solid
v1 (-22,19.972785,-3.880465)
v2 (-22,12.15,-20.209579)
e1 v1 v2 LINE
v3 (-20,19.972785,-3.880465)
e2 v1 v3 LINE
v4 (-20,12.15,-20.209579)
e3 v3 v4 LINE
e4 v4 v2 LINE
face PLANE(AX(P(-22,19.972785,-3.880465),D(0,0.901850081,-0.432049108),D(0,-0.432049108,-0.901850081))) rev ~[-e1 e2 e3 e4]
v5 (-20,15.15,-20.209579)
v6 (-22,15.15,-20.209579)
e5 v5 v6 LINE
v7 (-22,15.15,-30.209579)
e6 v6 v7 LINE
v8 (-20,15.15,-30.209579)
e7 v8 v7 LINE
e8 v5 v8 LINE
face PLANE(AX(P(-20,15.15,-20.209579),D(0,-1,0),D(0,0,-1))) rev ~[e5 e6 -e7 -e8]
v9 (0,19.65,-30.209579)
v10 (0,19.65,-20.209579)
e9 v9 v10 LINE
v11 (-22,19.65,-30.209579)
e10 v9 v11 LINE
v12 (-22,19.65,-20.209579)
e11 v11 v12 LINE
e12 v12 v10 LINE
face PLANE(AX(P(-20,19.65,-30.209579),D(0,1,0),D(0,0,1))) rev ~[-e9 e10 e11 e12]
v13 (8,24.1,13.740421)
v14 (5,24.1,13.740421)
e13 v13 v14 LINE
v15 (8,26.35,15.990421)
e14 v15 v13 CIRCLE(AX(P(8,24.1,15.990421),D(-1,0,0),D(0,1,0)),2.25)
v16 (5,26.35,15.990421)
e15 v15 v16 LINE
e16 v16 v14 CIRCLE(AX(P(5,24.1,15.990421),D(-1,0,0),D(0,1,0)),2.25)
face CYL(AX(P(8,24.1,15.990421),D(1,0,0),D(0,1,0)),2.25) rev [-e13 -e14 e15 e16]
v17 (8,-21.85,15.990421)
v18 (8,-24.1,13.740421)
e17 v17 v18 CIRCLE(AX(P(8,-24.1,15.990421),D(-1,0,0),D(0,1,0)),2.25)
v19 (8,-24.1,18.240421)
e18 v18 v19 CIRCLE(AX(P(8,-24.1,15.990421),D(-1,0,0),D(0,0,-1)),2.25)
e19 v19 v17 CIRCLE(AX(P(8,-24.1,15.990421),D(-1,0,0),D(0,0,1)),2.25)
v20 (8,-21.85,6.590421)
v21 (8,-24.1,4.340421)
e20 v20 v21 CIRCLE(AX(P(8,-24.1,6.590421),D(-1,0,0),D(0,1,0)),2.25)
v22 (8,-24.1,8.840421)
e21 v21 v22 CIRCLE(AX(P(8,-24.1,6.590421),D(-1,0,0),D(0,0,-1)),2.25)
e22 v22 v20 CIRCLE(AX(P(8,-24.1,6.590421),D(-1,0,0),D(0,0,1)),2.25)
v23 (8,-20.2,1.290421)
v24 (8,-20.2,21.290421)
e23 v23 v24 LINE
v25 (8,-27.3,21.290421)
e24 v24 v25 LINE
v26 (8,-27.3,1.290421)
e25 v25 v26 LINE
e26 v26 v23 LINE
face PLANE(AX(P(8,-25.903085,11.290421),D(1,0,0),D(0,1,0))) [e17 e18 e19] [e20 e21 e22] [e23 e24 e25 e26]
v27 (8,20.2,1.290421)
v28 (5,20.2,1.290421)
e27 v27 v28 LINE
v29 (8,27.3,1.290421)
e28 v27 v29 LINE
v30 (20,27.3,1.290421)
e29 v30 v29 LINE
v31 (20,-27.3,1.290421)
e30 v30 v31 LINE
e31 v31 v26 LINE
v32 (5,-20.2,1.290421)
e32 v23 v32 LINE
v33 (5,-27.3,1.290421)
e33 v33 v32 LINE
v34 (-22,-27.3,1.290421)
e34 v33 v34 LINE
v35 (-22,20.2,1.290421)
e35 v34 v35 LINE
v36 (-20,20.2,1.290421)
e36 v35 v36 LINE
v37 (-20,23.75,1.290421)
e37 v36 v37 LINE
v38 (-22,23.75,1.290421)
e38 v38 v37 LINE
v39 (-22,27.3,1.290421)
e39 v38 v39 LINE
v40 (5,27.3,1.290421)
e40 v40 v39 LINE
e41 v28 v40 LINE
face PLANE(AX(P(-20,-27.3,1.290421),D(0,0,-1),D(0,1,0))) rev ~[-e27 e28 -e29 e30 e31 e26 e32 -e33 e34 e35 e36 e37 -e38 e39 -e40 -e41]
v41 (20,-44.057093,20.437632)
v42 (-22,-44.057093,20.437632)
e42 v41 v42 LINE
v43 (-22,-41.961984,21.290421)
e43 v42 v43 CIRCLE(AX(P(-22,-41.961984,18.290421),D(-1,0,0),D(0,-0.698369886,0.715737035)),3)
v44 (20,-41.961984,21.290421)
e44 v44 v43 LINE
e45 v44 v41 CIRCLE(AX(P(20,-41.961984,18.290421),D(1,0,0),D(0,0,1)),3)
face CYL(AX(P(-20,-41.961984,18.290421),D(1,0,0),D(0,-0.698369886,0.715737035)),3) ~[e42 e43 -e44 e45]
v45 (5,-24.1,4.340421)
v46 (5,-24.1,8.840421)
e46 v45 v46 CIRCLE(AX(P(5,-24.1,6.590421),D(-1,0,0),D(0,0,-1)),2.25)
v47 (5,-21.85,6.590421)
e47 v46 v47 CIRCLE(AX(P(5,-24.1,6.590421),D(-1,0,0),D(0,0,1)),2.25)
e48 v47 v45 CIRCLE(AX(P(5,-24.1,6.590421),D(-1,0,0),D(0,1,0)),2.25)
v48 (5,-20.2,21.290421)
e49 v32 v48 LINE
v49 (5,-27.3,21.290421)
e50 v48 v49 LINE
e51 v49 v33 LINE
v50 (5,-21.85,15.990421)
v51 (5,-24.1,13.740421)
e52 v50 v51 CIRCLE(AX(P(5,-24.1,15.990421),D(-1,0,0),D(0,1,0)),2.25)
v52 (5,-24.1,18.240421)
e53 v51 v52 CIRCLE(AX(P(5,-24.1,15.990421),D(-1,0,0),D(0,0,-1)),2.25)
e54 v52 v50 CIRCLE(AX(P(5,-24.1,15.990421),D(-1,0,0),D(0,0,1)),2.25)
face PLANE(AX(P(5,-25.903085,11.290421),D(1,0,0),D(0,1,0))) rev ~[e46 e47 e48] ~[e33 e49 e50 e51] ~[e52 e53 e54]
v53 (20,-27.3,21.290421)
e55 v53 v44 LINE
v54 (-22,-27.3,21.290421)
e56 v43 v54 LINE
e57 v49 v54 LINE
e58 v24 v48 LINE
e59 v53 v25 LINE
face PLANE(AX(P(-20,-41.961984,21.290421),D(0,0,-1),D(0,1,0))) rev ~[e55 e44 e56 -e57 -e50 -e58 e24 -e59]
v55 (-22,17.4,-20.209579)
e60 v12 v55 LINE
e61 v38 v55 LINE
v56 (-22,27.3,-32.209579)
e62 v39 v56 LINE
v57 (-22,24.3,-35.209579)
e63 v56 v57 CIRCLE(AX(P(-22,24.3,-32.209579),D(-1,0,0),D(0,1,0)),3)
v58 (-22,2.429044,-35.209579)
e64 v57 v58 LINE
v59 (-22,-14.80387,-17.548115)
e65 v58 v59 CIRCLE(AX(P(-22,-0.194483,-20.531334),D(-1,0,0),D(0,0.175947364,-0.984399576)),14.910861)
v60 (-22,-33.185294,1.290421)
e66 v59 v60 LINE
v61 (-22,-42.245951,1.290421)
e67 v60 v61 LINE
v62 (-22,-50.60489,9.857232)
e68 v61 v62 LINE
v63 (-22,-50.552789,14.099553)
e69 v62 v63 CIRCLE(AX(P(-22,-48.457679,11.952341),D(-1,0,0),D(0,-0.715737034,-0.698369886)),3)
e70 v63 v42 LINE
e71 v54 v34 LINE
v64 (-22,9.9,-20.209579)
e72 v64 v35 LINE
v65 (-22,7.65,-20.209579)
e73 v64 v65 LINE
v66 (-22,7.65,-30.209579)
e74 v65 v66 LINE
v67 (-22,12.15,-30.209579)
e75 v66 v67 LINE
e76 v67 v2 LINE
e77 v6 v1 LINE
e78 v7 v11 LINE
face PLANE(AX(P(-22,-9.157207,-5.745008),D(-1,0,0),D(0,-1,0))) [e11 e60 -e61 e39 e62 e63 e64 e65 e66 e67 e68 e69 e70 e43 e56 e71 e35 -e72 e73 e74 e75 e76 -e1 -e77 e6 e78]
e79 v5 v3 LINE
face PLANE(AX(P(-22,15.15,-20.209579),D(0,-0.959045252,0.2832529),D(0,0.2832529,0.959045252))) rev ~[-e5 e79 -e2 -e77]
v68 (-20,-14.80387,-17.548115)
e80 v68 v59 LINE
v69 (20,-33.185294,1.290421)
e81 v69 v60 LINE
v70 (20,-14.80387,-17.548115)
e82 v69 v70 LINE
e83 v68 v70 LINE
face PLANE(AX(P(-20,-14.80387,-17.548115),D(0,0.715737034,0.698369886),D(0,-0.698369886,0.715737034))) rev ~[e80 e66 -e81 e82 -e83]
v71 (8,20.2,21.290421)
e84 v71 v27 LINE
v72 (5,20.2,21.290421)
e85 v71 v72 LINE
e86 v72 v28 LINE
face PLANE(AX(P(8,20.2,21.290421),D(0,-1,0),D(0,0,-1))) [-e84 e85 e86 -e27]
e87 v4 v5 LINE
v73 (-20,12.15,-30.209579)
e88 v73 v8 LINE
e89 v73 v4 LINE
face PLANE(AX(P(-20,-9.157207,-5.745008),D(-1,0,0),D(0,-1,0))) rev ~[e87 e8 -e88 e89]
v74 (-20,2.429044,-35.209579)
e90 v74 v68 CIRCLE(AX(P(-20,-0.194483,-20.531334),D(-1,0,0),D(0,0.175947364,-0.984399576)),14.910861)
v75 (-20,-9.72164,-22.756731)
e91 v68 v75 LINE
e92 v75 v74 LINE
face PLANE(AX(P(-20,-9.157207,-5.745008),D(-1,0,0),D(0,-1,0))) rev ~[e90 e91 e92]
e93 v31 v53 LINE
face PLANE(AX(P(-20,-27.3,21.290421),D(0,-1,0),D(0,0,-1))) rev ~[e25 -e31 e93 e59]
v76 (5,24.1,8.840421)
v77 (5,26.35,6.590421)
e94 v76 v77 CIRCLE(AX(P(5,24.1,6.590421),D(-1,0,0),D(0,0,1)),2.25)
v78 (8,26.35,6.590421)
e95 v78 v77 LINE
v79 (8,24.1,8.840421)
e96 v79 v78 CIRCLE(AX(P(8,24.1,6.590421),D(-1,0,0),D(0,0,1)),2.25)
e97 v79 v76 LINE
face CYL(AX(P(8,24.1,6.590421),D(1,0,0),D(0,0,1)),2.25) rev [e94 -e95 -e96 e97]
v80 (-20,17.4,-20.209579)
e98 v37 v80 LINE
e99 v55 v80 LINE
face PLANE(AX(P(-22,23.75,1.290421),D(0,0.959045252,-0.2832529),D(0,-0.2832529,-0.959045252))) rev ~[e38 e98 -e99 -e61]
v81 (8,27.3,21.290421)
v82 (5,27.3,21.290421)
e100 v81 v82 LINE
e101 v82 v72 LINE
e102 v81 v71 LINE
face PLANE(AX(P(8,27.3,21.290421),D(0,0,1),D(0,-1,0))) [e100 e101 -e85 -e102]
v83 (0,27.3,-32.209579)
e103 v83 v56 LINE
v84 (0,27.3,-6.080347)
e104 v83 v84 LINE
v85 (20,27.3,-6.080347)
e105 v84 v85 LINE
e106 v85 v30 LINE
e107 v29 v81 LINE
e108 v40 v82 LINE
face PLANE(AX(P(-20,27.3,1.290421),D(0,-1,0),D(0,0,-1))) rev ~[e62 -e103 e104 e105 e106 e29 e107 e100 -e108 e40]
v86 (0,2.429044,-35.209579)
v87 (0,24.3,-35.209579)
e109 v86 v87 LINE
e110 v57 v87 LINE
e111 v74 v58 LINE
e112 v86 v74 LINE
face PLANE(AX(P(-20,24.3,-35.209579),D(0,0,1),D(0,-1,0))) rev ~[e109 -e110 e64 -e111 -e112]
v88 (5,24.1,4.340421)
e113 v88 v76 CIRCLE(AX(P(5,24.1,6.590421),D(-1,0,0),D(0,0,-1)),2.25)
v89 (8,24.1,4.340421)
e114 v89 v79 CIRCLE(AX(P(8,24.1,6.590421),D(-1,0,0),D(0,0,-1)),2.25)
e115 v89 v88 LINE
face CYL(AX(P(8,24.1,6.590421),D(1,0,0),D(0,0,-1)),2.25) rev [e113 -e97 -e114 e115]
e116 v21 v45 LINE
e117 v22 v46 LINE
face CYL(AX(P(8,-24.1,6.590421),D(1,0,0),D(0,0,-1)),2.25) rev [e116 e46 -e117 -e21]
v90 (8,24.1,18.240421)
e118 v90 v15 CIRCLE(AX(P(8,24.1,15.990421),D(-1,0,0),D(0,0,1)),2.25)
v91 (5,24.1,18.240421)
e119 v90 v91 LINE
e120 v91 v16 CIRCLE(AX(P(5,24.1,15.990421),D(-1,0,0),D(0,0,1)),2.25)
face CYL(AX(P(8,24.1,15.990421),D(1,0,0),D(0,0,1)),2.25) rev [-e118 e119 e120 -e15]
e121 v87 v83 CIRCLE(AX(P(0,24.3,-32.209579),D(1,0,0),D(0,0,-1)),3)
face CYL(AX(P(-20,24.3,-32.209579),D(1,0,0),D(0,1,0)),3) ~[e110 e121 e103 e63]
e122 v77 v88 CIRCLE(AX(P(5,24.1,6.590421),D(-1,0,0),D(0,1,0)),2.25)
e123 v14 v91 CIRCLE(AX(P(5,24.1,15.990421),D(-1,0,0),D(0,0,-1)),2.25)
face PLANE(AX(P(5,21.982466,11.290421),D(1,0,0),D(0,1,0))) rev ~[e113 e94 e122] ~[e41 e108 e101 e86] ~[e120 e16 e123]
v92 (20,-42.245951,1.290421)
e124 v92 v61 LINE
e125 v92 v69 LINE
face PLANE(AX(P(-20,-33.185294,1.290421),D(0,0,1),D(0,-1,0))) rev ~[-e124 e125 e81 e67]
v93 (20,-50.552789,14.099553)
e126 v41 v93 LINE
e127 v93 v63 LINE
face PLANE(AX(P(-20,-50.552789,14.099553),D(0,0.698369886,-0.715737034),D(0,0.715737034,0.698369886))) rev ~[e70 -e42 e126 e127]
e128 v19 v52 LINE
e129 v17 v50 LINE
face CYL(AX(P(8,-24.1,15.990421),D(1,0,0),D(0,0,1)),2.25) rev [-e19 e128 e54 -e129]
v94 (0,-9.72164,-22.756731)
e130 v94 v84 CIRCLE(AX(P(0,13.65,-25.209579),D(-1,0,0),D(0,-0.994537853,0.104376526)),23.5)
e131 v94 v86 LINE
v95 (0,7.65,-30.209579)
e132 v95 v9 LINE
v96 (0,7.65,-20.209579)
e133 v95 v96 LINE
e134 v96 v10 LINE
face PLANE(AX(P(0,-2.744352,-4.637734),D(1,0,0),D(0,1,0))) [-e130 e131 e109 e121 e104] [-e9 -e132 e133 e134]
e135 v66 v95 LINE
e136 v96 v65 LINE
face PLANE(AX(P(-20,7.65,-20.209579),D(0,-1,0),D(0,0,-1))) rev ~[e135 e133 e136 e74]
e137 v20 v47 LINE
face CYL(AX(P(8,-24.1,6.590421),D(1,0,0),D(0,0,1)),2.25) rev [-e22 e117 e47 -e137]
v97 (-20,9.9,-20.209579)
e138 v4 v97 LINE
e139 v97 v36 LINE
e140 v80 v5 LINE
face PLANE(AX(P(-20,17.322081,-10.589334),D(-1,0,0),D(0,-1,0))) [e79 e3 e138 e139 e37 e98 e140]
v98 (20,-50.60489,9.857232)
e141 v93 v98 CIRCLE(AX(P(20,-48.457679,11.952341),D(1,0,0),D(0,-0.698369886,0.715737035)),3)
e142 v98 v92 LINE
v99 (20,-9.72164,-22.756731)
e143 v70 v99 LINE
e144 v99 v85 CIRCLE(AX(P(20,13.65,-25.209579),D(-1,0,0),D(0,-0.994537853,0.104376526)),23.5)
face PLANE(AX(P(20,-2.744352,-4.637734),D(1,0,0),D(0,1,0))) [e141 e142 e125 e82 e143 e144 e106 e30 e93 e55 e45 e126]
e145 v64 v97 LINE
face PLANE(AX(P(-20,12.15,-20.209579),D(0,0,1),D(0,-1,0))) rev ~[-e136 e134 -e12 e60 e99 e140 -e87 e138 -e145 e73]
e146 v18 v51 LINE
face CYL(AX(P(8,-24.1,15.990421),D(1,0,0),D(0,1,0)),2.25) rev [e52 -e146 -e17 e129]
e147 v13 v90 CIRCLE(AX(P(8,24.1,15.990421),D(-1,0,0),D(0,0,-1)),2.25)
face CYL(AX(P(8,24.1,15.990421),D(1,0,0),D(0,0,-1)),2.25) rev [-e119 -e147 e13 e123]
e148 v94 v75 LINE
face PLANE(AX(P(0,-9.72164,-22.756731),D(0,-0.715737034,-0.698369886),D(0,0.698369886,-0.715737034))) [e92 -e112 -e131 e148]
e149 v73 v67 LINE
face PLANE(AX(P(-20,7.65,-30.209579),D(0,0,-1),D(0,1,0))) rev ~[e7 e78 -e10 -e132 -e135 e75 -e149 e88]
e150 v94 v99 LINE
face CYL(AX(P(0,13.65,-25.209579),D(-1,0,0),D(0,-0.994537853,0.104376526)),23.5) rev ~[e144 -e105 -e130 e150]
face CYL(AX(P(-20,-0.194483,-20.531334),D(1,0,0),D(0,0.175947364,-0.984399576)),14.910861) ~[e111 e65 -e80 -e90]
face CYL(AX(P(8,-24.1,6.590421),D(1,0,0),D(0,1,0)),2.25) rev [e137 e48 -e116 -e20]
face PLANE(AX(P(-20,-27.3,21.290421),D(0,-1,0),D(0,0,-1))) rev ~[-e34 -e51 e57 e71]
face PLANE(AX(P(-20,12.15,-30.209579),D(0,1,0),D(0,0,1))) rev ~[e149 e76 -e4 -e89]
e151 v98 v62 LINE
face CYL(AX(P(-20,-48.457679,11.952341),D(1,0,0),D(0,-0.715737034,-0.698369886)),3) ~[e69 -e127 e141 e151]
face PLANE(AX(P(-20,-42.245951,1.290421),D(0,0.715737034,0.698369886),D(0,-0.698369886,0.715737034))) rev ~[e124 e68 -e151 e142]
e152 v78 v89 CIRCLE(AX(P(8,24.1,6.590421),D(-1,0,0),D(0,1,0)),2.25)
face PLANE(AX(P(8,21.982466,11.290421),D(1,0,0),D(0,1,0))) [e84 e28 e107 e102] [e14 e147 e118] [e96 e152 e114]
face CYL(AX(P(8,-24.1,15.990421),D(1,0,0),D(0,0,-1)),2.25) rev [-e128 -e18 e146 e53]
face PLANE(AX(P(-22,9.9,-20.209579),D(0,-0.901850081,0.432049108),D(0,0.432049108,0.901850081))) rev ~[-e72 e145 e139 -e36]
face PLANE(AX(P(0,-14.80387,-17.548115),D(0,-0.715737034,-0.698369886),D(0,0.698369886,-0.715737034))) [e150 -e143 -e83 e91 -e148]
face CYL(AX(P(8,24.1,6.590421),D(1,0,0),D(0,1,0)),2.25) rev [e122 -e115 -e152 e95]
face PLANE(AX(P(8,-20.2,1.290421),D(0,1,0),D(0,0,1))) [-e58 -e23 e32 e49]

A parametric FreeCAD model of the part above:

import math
import FreeCAD as App
import Part
import Sketcher
from FreeCAD import Vector


def add_polygon(sketch, points):
    """Adds a closed chain of lines whose ends are joined by coincident constraints."""
    first, n = sketch.GeometryCount, len(points)
    for a, b in zip(points, points[1:] + points[:1]):
        sketch.addGeometry(Part.LineSegment(App.Vector(*a, 0), App.Vector(*b, 0)), False)
    for i in range(n):
        sketch.addConstraint(Sketcher.Constraint("Coincident", first + i, 2, first + (i + 1) % n, 1))

doc = App.newDocument("Part")
body = doc.addObject("PartDesign::Body", "Body")

sketch1 = body.newObject("Sketcher::SketchObject", "Sketch")
sketch1.AttachmentSupport = (doc.getObject("YZ_Plane"), [""])
sketch1.MapMode = "FlatFace"
sketch1.addGeometry([
    Part.ArcOfCircle(Part.Circle(Vector(13.7, -25.2, 0), Vector(0, 0, 1), 23.5), math.radians(54), math.radians(174)),
    Part.LineSegment(Vector(27.3, -6.1, 0), Vector(27.3, 1.3, 0)),
    Part.LineSegment(Vector(27.3, 1.3, 0), Vector(-27.3, 1.3, 0)),
    Part.LineSegment(Vector(-27.3, 1.3, 0), Vector(-27.3, 21.3, 0)),
    Part.LineSegment(Vector(-27.3, 21.3, 0), Vector(-42, 21.3, 0)),
    Part.ArcOfCircle(Part.Circle(Vector(-42, 18.3, 0), Vector(0, 0, 1), 3), math.radians(90), math.radians(134)),
    Part.LineSegment(Vector(-44.1, 20.4, 0), Vector(-50.6, 14.1, 0)),
    Part.ArcOfCircle(Part.Circle(Vector(-48.5, 12, 0), Vector(0, 0, 1), 3), math.radians(134), math.radians(224)),
    Part.LineSegment(Vector(-50.6, 9.9, 0), Vector(-42.2, 1.3, 0)),
    Part.LineSegment(Vector(-42.2, 1.3, 0), Vector(-33.2, 1.3, 0)),
    Part.LineSegment(Vector(-33.2, 1.3, 0), Vector(-14.8, -17.5, 0)),
    Part.LineSegment(Vector(-14.8, -17.5, 0), Vector(-9.7, -22.8, 0)),
], False)
sketch1.addConstraint([
    Sketcher.Constraint("Coincident", 0, 1, 1, 1),
    Sketcher.Constraint("Coincident", 1, 2, 2, 1),
    Sketcher.Constraint("Coincident", 2, 2, 3, 1),
    Sketcher.Constraint("Coincident", 3, 2, 4, 1),
    Sketcher.Constraint("Tangent", 4, 2, 5, 1),
    Sketcher.Constraint("Tangent", 5, 2, 6, 1),
    Sketcher.Constraint("Tangent", 6, 2, 7, 1),
    Sketcher.Constraint("Tangent", 7, 2, 8, 1),
    Sketcher.Constraint("Coincident", 8, 2, 9, 1),
    Sketcher.Constraint("Coincident", 9, 2, 10, 1),
    Sketcher.Constraint("Coincident", 10, 2, 11, 1),
    Sketcher.Constraint("Coincident", 11, 2, 0, 2),
    Sketcher.Constraint("Vertical", 1),
    Sketcher.Constraint("Horizontal", 2),
    Sketcher.Constraint("Vertical", 3),
    Sketcher.Constraint("Horizontal", 4),
    Sketcher.Constraint("Horizontal", 9),
    Sketcher.Constraint("Equal", 5, 7),
    Sketcher.Constraint("Perpendicular", 6, 8),
    Sketcher.Constraint("Parallel", 8, 10),
    Sketcher.Constraint("Parallel", 10, 11),
    Sketcher.Constraint("Horizontal", 2, 2, 8, 2),
    Sketcher.Constraint("Radius", 5, 3.0),
    Sketcher.Constraint("Radius", 0, 23.5),
    Sketcher.Constraint("DistanceY", 3, 1, 3, 2, 20.0),
    Sketcher.Constraint("DistanceX", 2, 2, 2, 1, 54.6),
    Sketcher.Constraint("DistanceX", -1, 1, 0, 1, 27.3),
    Sketcher.Constraint("DistanceY", 0, 3, 5, 3, 43.5),
    Sketcher.Constraint("DistanceX", -1, 1, 0, 3, 13.65),
    Sketcher.Constraint("DistanceX", 7, 2, 6, 2, 0.052101),
    Sketcher.Constraint("DistanceY", 7, 2, 5, 2, 10.5804),
    Sketcher.Constraint("Distance", 10, 26.320471),
    Sketcher.Constraint("DistanceX", 4, 2, 4, 1, 14.661984),
    Sketcher.Constraint("DistanceX", 9, 1, 9, 2, 9.060657),
    Sketcher.Constraint("DistanceY", 0, 3, -1, 1, 25.209579),
])
pad1 = body.newObject("PartDesign::Pad", "Pad")
pad1.Profile = sketch1
pad1.Length = 20

sketch2 = body.newObject("Sketcher::SketchObject", "Sketch001")
sketch2.AttachmentSupport = (doc.getObject("YZ_Plane"), [""])
sketch2.MapMode = "FlatFace"
sketch2.addGeometry(Part.LineSegment(Vector(27.3, 1.3, 0), Vector(-27.3, 1.3, 0)), False)
sketch2.addGeometry(Part.LineSegment(Vector(-27.3, 1.3, 0), Vector(-27.3, 21.3, 0)), False)
sketch2.addGeometry(Part.LineSegment(Vector(-27.3, 21.3, 0), Vector(-42, 21.3, 0)), False)
sketch2.addGeometry(Part.ArcOfCircle(Part.Circle(Vector(-42, 18.3, 0), Vector(0, 0, 1), 3), math.radians(90), math.radians(134)), False)
sketch2.addGeometry(Part.LineSegment(Vector(-44.1, 20.4, 0), Vector(-50.6, 14.1, 0)), False)
sketch2.addGeometry(Part.ArcOfCircle(Part.Circle(Vector(-48.5, 12, 0), Vector(0, 0, 1), 3), math.radians(134), math.radians(224)), False)
sketch2.addGeometry(Part.LineSegment(Vector(-50.6, 9.9, 0), Vector(-42.2, 1.3, 0)), False)
sketch2.addGeometry(Part.LineSegment(Vector(-42.2, 1.3, 0), Vector(-33.2, 1.3, 0)), False)
sketch2.addGeometry(Part.LineSegment(Vector(-33.2, 1.3, 0), Vector(-14.8, -17.5, 0)), False)
sketch2.addGeometry(Part.LineSegment(Vector(-14.8, -17.5, 0), Vector(-9.7, -22.8, 0)), False)
sketch2.addGeometry(Part.LineSegment(Vector(-9.7, -22.8, 0), Vector(2.4, -35.2, 0)), False)
sketch2.addGeometry(Part.LineSegment(Vector(2.4, -35.2, 0), Vector(24.3, -35.2, 0)), False)
sketch2.addGeometry(Part.ArcOfCircle(Part.Circle(Vector(24.3, -32.2, 0), Vector(0, 0, 1), 3), math.radians(-90), math.radians(0)), False)
sketch2.addGeometry(Part.LineSegment(Vector(27.3, -32.2, 0), Vector(27.3, 1.3, 0)), False)
add_polygon(sketch2, [(19.6, -30.2), (7.7, -30.2), (7.7, -20.2), (19.6, -20.2)])
sketch2.addConstraint([
    Sketcher.Constraint("Coincident", 0, 2, 1, 1),
    Sketcher.Constraint("Coincident", 1, 2, 2, 1),
    Sketcher.Constraint("Tangent", 2, 2, 3, 1),
    Sketcher.Constraint("Tangent", 3, 2, 4, 1),
    Sketcher.Constraint("Tangent", 4, 2, 5, 1),
    Sketcher.Constraint("Tangent", 5, 2, 6, 1),
    Sketcher.Constraint("Coincident", 6, 2, 7, 1),
    Sketcher.Constraint("Coincident", 7, 2, 8, 1),
    Sketcher.Constraint("Coincident", 8, 2, 9, 1),
    Sketcher.Constraint("Coincident", 9, 2, 10, 1),
    Sketcher.Constraint("Coincident", 10, 2, 11, 1),
    Sketcher.Constraint("Tangent", 11, 2, 12, 1),
    Sketcher.Constraint("Tangent", 12, 2, 13, 1),
    Sketcher.Constraint("Coincident", 13, 2, 0, 1),
    Sketcher.Constraint("Horizontal", 0),
    Sketcher.Constraint("Vertical", 1),
    Sketcher.Constraint("Horizontal", 2),
    Sketcher.Constraint("Horizontal", 7),
    Sketcher.Constraint("Horizontal", 11),
    Sketcher.Constraint("Vertical", 13),
    Sketcher.Constraint("Horizontal", 14),
    Sketcher.Constraint("Vertical", 15),
    Sketcher.Constraint("Horizontal", 16),
    Sketcher.Constraint("Vertical", 17),
    Sketcher.Constraint("Equal", 3, 5),
    Sketcher.Constraint("Equal", 5, 12),
    Sketcher.Constraint("Perpendicular", 4, 6),
    Sketcher.Constraint("Parallel", 6, 8),
    Sketcher.Constraint("Parallel", 8, 9),
    Sketcher.Constraint("Parallel", 9, 10),
    Sketcher.Constraint("Horizontal", 0, 2, 6, 2),
    Sketcher.Constraint("Radius", 3, 3.0),
    Sketcher.Constraint("DistanceX", 14, 2, 14, 1, 12.0),
    Sketcher.Constraint("DistanceY", 1, 1, 1, 2, 20.0),
    Sketcher.Constraint("DistanceY", 15, 1, 15, 2, 10.0),
    Sketcher.Constraint("DistanceX", 0, 2, 0, 1, 54.6),
    Sketcher.Constraint("DistanceY", 13, 1, 13, 2, 33.5),
    Sketcher.Constraint("DistanceY", 10, 2, 14, 2, 5.0),
    Sketcher.Constraint("DistanceX", -1, 1, 12, 3, 24.3),
    Sketcher.Constraint("DistanceX", -1, 1, 14, 2, 7.65),
    Sketcher.Constraint("DistanceX", 5, 2, 4, 2, 0.052101),
    Sketcher.Constraint("DistanceY", 5, 2, 3, 2, 10.5804),
    Sketcher.Constraint("Distance", 8, 26.320471),
    Sketcher.Constraint("DistanceX", 2, 2, 2, 1, 14.661984),
    Sketcher.Constraint("DistanceX", 7, 1, 7, 2, 9.060657),
    Sketcher.Constraint("DistanceY", -1, 1, 3, 3, 18.290421),
    Sketcher.Constraint("DistanceX", 9, 2, -1, 1, 9.72164),
])
pad2 = body.newObject("PartDesign::Pad", "Pad001")
pad2.Profile = sketch2
pad2.Length = 20
pad2.Reversed = True

sketch3 = body.newObject("Sketcher::SketchObject", "Sketch002")
sketch3.AttachmentSupport = (doc.getObject("YZ_Plane"), [""])
sketch3.MapMode = "FlatFace"
sketch3.AttachmentOffset = App.Placement(Vector(0, 0, -20), App.Rotation())
sketch3.addGeometry(Part.LineSegment(Vector(-14.80387, -17.548115, 0), Vector(-33.185294, 1.290421, 0)), False)
sketch3.addGeometry(Part.LineSegment(Vector(-33.185294, 1.290421, 0), Vector(-42.245951, 1.290421, 0)), False)
sketch3.addGeometry(Part.LineSegment(Vector(-42.245951, 1.290421, 0), Vector(-50.60489, 9.857232, 0)), False)
sketch3.addGeometry(Part.ArcOfCircle(Part.Circle(Vector(-48.457679, 11.952341, 0), Vector(0, 0, 1), 3), math.radians(134.296366), math.radians(224.296366)), False)
sketch3.addGeometry(Part.LineSegment(Vector(-50.552789, 14.099553, 0), Vector(-44.057093, 20.437632, 0)), False)
sketch3.addGeometry(Part.ArcOfCircle(Part.Circle(Vector(-41.961984, 18.290421, 0), Vector(0, 0, 1), 3), math.radians(90), math.radians(134.296366)), False)
sketch3.addGeometry(Part.LineSegment(Vector(-41.961984, 21.290421, 0), Vector(-27.3, 21.290421, 0)), False)
sketch3.addGeometry(Part.LineSegment(Vector(-27.3, 21.290421, 0), Vector(-27.3, 1.290421, 0)), False)
sketch3.addGeometry(Part.LineSegment(Vector(-27.3, 1.290421, 0), Vector(27.3, 1.290421, 0)), False)
sketch3.addGeometry(Part.LineSegment(Vector(27.3, 1.290421, 0), Vector(27.3, -32.209579, 0)), False)
sketch3.addGeometry(Part.ArcOfCircle(Part.Circle(Vector(24.3, -32.209579, 0), Vector(0, 0, 1), 3), math.radians(-90), math.radians(0)), False)
sketch3.addGeometry(Part.LineSegment(Vector(24.3, -35.209579, 0), Vector(2.429044, -35.209579, 0)), False)
sketch3.addGeometry(Part.ArcOfCircle(Part.Circle(Vector(-0.194483, -20.531334, 0), Vector(0, 0, 1), 14.910861), math.radians(168.458938), math.radians(280.133794)), False)
add_polygon(sketch3, [(7.65, -30.209579), (12.15, -30.209579), (12.15, -20.209579), (7.65, -20.209579)])
add_polygon(sketch3, [(15.15, -30.209579), (19.65, -30.209579), (19.65, -20.209579), (15.15, -20.209579)])
sketch3.addConstraint([
    Sketcher.Constraint("Coincident", 0, 2, 1, 1),
    Sketcher.Constraint("Coincident", 1, 2, 2, 1),
    Sketcher.Constraint("Coincident", 2, 2, 3, 2),
    Sketcher.Constraint("Coincident", 3, 1, 4, 1),
    Sketcher.Constraint("Coincident", 4, 2, 5, 2),
    Sketcher.Constraint("Coincident", 5, 1, 6, 1),
    Sketcher.Constraint("Coincident", 6, 2, 7, 1),
    Sketcher.Constraint("Coincident", 7, 2, 8, 1),
    Sketcher.Constraint("Coincident", 8, 2, 9, 1),
    Sketcher.Constraint("Coincident", 9, 2, 10, 2),
    Sketcher.Constraint("Coincident", 10, 1, 11, 1),
    Sketcher.Constraint("Coincident", 11, 2, 12, 2),
    Sketcher.Constraint("Coincident", 12, 1, 0, 1),
    Sketcher.Constraint("Horizontal", 1),
    Sketcher.Constraint("Horizontal", 6),
    Sketcher.Constraint("Vertical", 7),
    Sketcher.Constraint("Horizontal", 8),
    Sketcher.Constraint("Vertical", 9),
    Sketcher.Constraint("Horizontal", 11),
    Sketcher.Constraint("Horizontal", 13),
    Sketcher.Constraint("Vertical", 14),
    Sketcher.Constraint("Horizontal", 15),
    Sketcher.Constraint("Vertical", 16),
    Sketcher.Constraint("Horizontal", 17),
    Sketcher.Constraint("Vertical", 18),
    Sketcher.Constraint("Horizontal", 19),
    Sketcher.Constraint("Vertical", 20),
    Sketcher.Constraint("Radius", 3, 3.0),
    Sketcher.Constraint("Radius", 5, 3.0),
    Sketcher.Constraint("Radius", 10, 3.0),
    Sketcher.Constraint("DistanceY", 7, 2, 7, 1, 20.0),
    Sketcher.Constraint("DistanceY", 14, 1, 14, 2, 10.0),
    Sketcher.Constraint("DistanceY", 18, 1, 18, 2, 10.0),
    Sketcher.Constraint("DistanceX", 8, 1, 8, 2, 54.6),
    Sketcher.Constraint("DistanceX", 13, 1, 13, 2, 4.5),
    Sketcher.Constraint("DistanceX", 17, 1, 17, 2, 4.5),
    Sketcher.Constraint("DistanceY", 9, 2, 9, 1, 33.5),
    Sketcher.Constraint("DistanceY", 0, 2, 5, 3, 17.0),
    Sketcher.Constraint("DistanceX", 10, 1, 9, 2, 3.0),
    Sketcher.Constraint("DistanceY", 10, 1, 9, 2, 3.0),
    Sketcher.Constraint("DistanceY", 11, 2, 13, 2, 5.0),
    Sketcher.Constraint("DistanceY", 10, 3, 17, 2, 2.0),
    Sketcher.Constraint("DistanceX", 16, 2, 17, 2, 12.0),
    Sketcher.Constraint("DistanceX", -1, 1, 10, 3, 24.3),
    Sketcher.Constraint("DistanceX", -1, 1, 13, 2, 12.15),
    Sketcher.Constraint("Radius", 12, 14.910861),
    Sketcher.Constraint("DistanceX", 5, 3, 12, 3, 41.767501),
    Sketcher.Constraint("DistanceX", 2, 2, 3, 1, 0.052101),
    Sketcher.Constraint("DistanceY", 2, 2, 4, 2, 10.5804),
    Sketcher.Constraint("Distance", 0, 26.320471),
    Sketcher.Constraint("DistanceX", 1, 2, 1, 1, 9.060657),
    Sketcher.Constraint("DistanceX", 6, 1, 6, 2, 14.661984),
    Sketcher.Constraint("DistanceX", 11, 2, 11, 1, 21.870956),
    Sketcher.Constraint("DistanceX", 3, 3, -1, 1, 48.457679),
    Sketcher.Constraint("DistanceY", -1, 1, 3, 3, 11.952341),
    Sketcher.Constraint("DistanceY", -1, 1, 5, 3, 18.290421),
    Sketcher.Constraint("DistanceX", 1, 2, -1, 1, 42.245951),
    Sketcher.Constraint("DistanceX", 2, 2, -1, 1, 50.60489),
    Sketcher.Constraint("DistanceX", 12, 1, -1, 1, 14.80387),
])
pad3 = body.newObject("PartDesign::Pad", "Pad002")
pad3.Profile = sketch3
pad3.Length = 2
pad3.Reversed = True

sketch4 = body.newObject("Sketcher::SketchObject", "Sketch003")
sketch4.AttachmentSupport = (doc.getObject("YZ_Plane"), [""])
sketch4.MapMode = "FlatFace"
sketch4.AttachmentOffset = App.Placement(Vector(0, 0, 8), App.Rotation())
add_polygon(sketch4, [(-27.3, 21.3), (-27.3, 1.3), (-20.2, 1.3), (-20.2, 21.3)])
sketch4.addGeometry(Part.ArcOfCircle(Part.Circle(Vector(-24.1, 6.6, 0), Vector(0, 0, 1), 2.2), math.radians(90), math.radians(270)), False)
sketch4.addGeometry(Part.ArcOfCircle(Part.Circle(Vector(-24.1, 6.6, 0), Vector(0, 0, 1), 2.2), math.radians(0), math.radians(90)), False)
sketch4.addGeometry(Part.ArcOfCircle(Part.Circle(Vector(-24.1, 6.6, 0), Vector(0, 0, 1), 2.2), math.radians(-90), math.radians(0)), False)
sketch4.addGeometry(Part.ArcOfCircle(Part.Circle(Vector(-24.1, 16, 0), Vector(0, 0, 1), 2.2), math.radians(90), math.radians(270)), False)
sketch4.addGeometry(Part.ArcOfCircle(Part.Circle(Vector(-24.1, 16, 0), Vector(0, 0, 1), 2.2), math.radians(0), math.radians(90)), False)
sketch4.addGeometry(Part.ArcOfCircle(Part.Circle(Vector(-24.1, 16, 0), Vector(0, 0, 1), 2.2), math.radians(-90), math.radians(0)), False)
add_polygon(sketch4, [(20.2, 21.3), (20.2, 1.3), (27.3, 1.3), (27.3, 21.3)])
sketch4.addGeometry(Part.ArcOfCircle(Part.Circle(Vector(24.1, 6.6, 0), Vector(0, 0, 1), 2.2), math.radians(90), math.radians(270)), False)
sketch4.addGeometry(Part.ArcOfCircle(Part.Circle(Vector(24.1, 6.6, 0), Vector(0, 0, 1), 2.2), math.radians(0), math.radians(90)), False)
sketch4.addGeometry(Part.ArcOfCircle(Part.Circle(Vector(24.1, 6.6, 0), Vector(0, 0, 1), 2.2), math.radians(-90), math.radians(0)), False)
sketch4.addGeometry(Part.ArcOfCircle(Part.Circle(Vector(24.1, 16, 0), Vector(0, 0, 1), 2.2), math.radians(90), math.radians(270)), False)
sketch4.addGeometry(Part.ArcOfCircle(Part.Circle(Vector(24.1, 16, 0), Vector(0, 0, 1), 2.2), math.radians(0), math.radians(90)), False)
sketch4.addGeometry(Part.ArcOfCircle(Part.Circle(Vector(24.1, 16, 0), Vector(0, 0, 1), 2.2), math.radians(-90), math.radians(0)), False)
sketch4.addConstraint([
    Sketcher.Constraint("Tangent", 4, 1, 5, 2),
    Sketcher.Constraint("Tangent", 5, 1, 6, 2),
    Sketcher.Constraint("Tangent", 6, 1, 4, 2),
    Sketcher.Constraint("Tangent", 7, 1, 8, 2),
    Sketcher.Constraint("Tangent", 8, 1, 9, 2),
    Sketcher.Constraint("Tangent", 9, 1, 7, 2),
    Sketcher.Constraint("Tangent", 14, 1, 15, 2),
    Sketcher.Constraint("Tangent", 15, 1, 16, 2),
    Sketcher.Constraint("Tangent", 16, 1, 14, 2),
    Sketcher.Constraint("Tangent", 17, 1, 18, 2),
    Sketcher.Constraint("Tangent", 18, 1, 19, 2),
    Sketcher.Constraint("Tangent", 19, 1, 17, 2),
    Sketcher.Constraint("Vertical", 0),
    Sketcher.Constraint("Horizontal", 1),
    Sketcher.Constraint("Vertical", 2),
    Sketcher.Constraint("Horizontal", 3),
    Sketcher.Constraint("Vertical", 10),
    Sketcher.Constraint("Horizontal", 11),
    Sketcher.Constraint("Vertical", 12),
    Sketcher.Constraint("Horizontal", 13),
    Sketcher.Constraint("Equal", 6, 7),
    Sketcher.Constraint("Equal", 9, 14),
    Sketcher.Constraint("Equal", 16, 17),
    Sketcher.Constraint("Symmetric", 4, 3, 14, 3, -2),
    Sketcher.Constraint("Symmetric", 7, 3, 17, 3, -2),
    Sketcher.Constraint("Symmetric", 1, 2, 10, 2, -2),
    Sketcher.Constraint("Symmetric", 3, 2, 12, 2, -2),
    Sketcher.Constraint("Horizontal", 16, 3, 5, 1),
    Sketcher.Constraint("Horizontal", 19, 3, 8, 1),
    Sketcher.Constraint("Horizontal", 5, 1, 15, 1),
    Sketcher.Constraint("Horizontal", 8, 1, 18, 1),
    Sketcher.Constraint("Vertical", 6, 3, 7, 3),
    Sketcher.Constraint("Vertical", 9, 3, 4, 1),
    Sketcher.Constraint("Vertical", 4, 1, 6, 1),
    Sketcher.Constraint("Vertical", 6, 1, 7, 1),
    Sketcher.Constraint("Vertical", 7, 1, 9, 1),
    Sketcher.Constraint("Vertical", 19, 3, 14, 1),
    Sketcher.Constraint("Vertical", 14, 1, 16, 1),
    Sketcher.Constraint("Vertical", 16, 1, 17, 1),
    Sketcher.Constraint("Vertical", 17, 1, 19, 1),
    Sketcher.Constraint("DistanceY", 0, 2, 0, 1, 20.0),
    Sketcher.Constraint("Radius", 4, 2.25),
    Sketcher.Constraint("DistanceX", 1, 1, 1, 2, 7.1),
    Sketcher.Constraint("DistanceX", 4, 3, -1, 1, 24.1),
    Sketcher.Constraint("DistanceX", 0, 2, -1, 1, 27.3),
    Sketcher.Constraint("DistanceY", 4, 3, 7, 3, 9.4),
    Sketcher.Constraint("DistanceY", 0, 2, 6, 3, 5.3),
    Sketcher.Constraint("DistanceY", -1, 1, 4, 3, 6.590421),
])
pad4 = body.newObject("PartDesign::Pad", "Pad003")
pad4.Profile = sketch4
pad4.Length = 3
pad4.Reversed = True

sketch5 = body.newObject("Sketcher::SketchObject", "Sketch004")
sketch5.AttachmentSupport = (doc.getObject("YZ_Plane"), [""])
sketch5.MapMode = "FlatFace"
sketch5.AttachmentOffset = App.Placement(Vector(0, 0, -22), App.Rotation())
add_polygon(sketch5, [(20, -3.9), (12.2, -20.2), (9.9, -20.2), (20.2, 1.3), (23.8, 1.3), (17.4, -20.2), (15.2, -20.2)])
sketch5.addConstraint([
    Sketcher.Constraint("Horizontal", 1),
    Sketcher.Constraint("Horizontal", 3),
    Sketcher.Constraint("Horizontal", 5),
    Sketcher.Constraint("Parallel", 0, 2),
    Sketcher.Constraint("Parallel", 4, 6),
    Sketcher.Constraint("Horizontal", 1, 2, 4, 2),
    Sketcher.Constraint("Equal", 1, 5),
    Sketcher.Constraint("DistanceX", 0, 2, 5, 2, 3.0),
    Sketcher.Constraint("DistanceX", 1, 2, 1, 1, 2.25),
    Sketcher.Constraint("DistanceX", 3, 1, 3, 2, 3.55),
    Sketcher.Constraint("DistanceX", -1, 1, 1, 2, 9.9),
    Sketcher.Constraint("DistanceX", -1, 1, 2, 2, 20.2),
    Sketcher.Constraint("DistanceY", 0, 2, 2, 2, 21.5),
    Sketcher.Constraint("DistanceY", 0, 2, -1, 1, 20.209579),
])
pocket1 = body.newObject("PartDesign::Pocket", "Pocket")
pocket1.Profile = sketch5
pocket1.Length = 2
pocket1.Reversed = True

doc.recompute()
